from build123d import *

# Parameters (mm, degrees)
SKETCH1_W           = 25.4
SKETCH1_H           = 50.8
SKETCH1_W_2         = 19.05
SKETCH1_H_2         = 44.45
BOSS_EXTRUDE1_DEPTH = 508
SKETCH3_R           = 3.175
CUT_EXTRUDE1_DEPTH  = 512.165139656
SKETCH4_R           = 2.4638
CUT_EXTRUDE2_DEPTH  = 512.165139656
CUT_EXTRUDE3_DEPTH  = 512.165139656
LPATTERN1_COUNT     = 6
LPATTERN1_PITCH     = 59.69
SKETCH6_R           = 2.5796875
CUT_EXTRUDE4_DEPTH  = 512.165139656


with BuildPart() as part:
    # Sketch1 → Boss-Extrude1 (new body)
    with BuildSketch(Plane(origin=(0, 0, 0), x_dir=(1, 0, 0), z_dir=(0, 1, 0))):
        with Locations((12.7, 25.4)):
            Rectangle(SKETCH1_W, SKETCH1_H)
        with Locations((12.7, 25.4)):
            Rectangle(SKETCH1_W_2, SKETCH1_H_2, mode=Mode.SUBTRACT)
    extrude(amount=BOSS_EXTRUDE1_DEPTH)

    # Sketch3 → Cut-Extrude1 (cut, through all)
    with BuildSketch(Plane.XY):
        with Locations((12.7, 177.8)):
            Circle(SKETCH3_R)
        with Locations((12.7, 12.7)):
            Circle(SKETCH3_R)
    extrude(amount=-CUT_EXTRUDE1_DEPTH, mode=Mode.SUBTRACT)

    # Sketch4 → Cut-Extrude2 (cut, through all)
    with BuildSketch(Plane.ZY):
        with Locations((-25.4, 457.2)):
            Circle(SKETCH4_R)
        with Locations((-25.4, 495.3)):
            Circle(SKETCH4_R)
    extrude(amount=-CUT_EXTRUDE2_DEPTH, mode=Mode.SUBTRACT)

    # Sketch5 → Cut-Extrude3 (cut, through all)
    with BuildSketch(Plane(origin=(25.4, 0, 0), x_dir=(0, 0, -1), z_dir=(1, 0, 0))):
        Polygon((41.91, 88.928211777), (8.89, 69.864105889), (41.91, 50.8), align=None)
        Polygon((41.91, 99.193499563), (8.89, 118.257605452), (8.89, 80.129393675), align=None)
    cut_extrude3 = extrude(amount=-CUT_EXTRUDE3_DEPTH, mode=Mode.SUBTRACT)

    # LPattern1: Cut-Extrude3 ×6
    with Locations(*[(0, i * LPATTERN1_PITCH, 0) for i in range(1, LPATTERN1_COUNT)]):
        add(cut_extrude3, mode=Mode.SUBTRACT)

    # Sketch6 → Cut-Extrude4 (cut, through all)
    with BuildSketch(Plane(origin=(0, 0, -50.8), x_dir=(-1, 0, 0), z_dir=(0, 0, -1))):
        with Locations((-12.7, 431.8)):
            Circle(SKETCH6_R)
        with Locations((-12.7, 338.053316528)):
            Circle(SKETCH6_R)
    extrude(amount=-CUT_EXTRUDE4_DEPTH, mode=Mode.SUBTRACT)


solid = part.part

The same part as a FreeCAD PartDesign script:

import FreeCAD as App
import Part
import Sketcher

V = App.Vector
Q = App.Units.Quantity

doc = App.newDocument("Part")
body = doc.addObject("PartDesign::Body", "Body")

# Sketch on XZ plane
sketch1 = body.newObject("Sketcher::SketchObject", "Sketch")
sketch1.AttachmentSupport = (doc.getObject("XZ_Plane"), [""])
sketch1.MapMode = "FlatFace"
sketch1.addGeometry([
    Part.LineSegment(V(0, -50.8, 0), V(0, 0, 0)),  # 0
    Part.LineSegment(V(0, 0, 0), V(25.4, 0, 0)),  # 1
    Part.LineSegment(V(25.4, 0, 0), V(25.4, -50.8, 0)),  # 2
    Part.LineSegment(V(25.4, -50.8, 0), V(0, -50.8, 0)),  # 3
    Part.LineSegment(V(22.225, -3.175, 0), V(3.175, -3.175, 0)),  # 4
    Part.LineSegment(V(3.175, -3.175, 0), V(3.175, -47.625, 0)),  # 5
    Part.LineSegment(V(3.175, -47.625, 0), V(22.225, -47.625, 0)),  # 6
    Part.LineSegment(V(22.225, -47.625, 0), V(22.225, -3.175, 0)),  # 7
], False)
sketch1.addConstraint([
    Sketcher.Constraint("Coincident", 0, 2, 1, 1),
    Sketcher.Constraint("Coincident", 1, 2, 2, 1),
    Sketcher.Constraint("Coincident", 2, 2, 3, 1),
    Sketcher.Constraint("Coincident", 3, 2, 0, 1),
    Sketcher.Constraint("Coincident", 4, 2, 5, 1),
    Sketcher.Constraint("Coincident", 5, 2, 6, 1),
    Sketcher.Constraint("Coincident", 6, 2, 7, 1),
    Sketcher.Constraint("Coincident", 7, 2, 4, 1),
    Sketcher.Constraint("Vertical", 0),
    Sketcher.Constraint("Horizontal", 1),
    Sketcher.Constraint("Vertical", 2),
    Sketcher.Constraint("Horizontal", 3),
    Sketcher.Constraint("Horizontal", 4),
    Sketcher.Constraint("Vertical", 5),
    Sketcher.Constraint("Horizontal", 6),
    Sketcher.Constraint("Vertical", 7),
    Sketcher.Constraint("Coincident", 0, 2, -1, 1),
    Sketcher.Constraint("DistanceX", 1, 1, 1, 2, Q("1 in")),
    Sketcher.Constraint("DistanceY", 0, 1, 0, 2, Q("2 in")),
    Sketcher.Constraint("DistanceX", 4, 2, 4, 1, Q("0.75 in")),
    Sketcher.Constraint("DistanceY", 5, 2, 5, 1, Q("1.75 in")),
    Sketcher.Constraint("DistanceX", -1, 1, 4, 2, Q("0.125 in")),
    Sketcher.Constraint("DistanceY", 4, 2, -1, 1, Q("0.125 in")),
])
pad1 = body.newObject("PartDesign::Pad", "Pad")
pad1.Profile = sketch1
pad1.Length = Q("20 in")
pad1.Reversed = True

# Sketch on XY plane
sketch2 = body.newObject("Sketcher::SketchObject", "Sketch001")
sketch2.AttachmentSupport = (doc.getObject("XY_Plane"), [""])
sketch2.MapMode = "FlatFace"
sketch2.addGeometry([
    Part.Circle(V(12.7, 177.8, 0), V(0, 0, 1), 3.175),
    Part.Circle(V(12.7, 12.7, 0), V(0, 0, 1), 3.175),
], False)
sketch2.addConstraint([
    Sketcher.Constraint("Equal", 0, 1),
    Sketcher.Constraint("Vertical", 0, 3, 1, 3),
    Sketcher.Constraint("Diameter", 0, Q("0.25 in")),
    Sketcher.Constraint("DistanceY", -1, 1, 0, 3, Q("7 in")),
    Sketcher.Constraint("DistanceX", -1, 1, 0, 3, Q("0.5 in")),
    Sketcher.Constraint("DistanceY", -1, 1, 1, 3, Q("0.5 in")),
])
pocket1 = body.newObject("PartDesign::Pocket", "Pocket")
pocket1.Profile = sketch2
pocket1.Type = "ThroughAll"

# Sketch on YZ plane
sketch3 = body.newObject("Sketcher::SketchObject", "Sketch002")
sketch3.AttachmentSupport = (doc.getObject("YZ_Plane"), [""])
sketch3.MapMode = "FlatFace"
sketch3.addGeometry([
    Part.Circle(V(457.2, -25.4, 0), V(0, 0, 1), 2.4638),
    Part.Circle(V(495.3, -25.4, 0), V(0, 0, 1), 2.4638),
], False)
sketch3.addConstraint([
    Sketcher.Constraint("Equal", 0, 1),
    Sketcher.Constraint("Horizontal", 0, 3, 1, 3),
    Sketcher.Constraint("Diameter", 0, Q("0.194 in")),
    Sketcher.Constraint("DistanceX", -1, 1, 0, 3, Q("18 in")),
    Sketcher.Constraint("DistanceY", 0, 3, -1, 1, Q("1 in")),
    Sketcher.Constraint("DistanceX", -1, 1, 1, 3, Q("19.5 in")),
])
pocket2 = body.newObject("PartDesign::Pocket", "Pocket001")
pocket2.Profile = sketch3
pocket2.Type = "ThroughAll"
pocket2.Reversed = True

# Sketch on YZ plane
sketch4 = body.newObject("Sketcher::SketchObject", "Sketch003")
sketch4.AttachmentSupport = (doc.getObject("YZ_Plane"), [""])
sketch4.MapMode = "FlatFace"
sketch4.AttachmentOffset = App.Placement(V(0, 0, 1 * 25.4), App.Rotation())
sketch4.addGeometry([
    Part.LineSegment(V(88.928212, -41.91, 0), V(69.864106, -8.89, 0)),  # 0
    Part.LineSegment(V(69.864106, -8.89, 0), V(50.8, -41.91, 0)),  # 1
    Part.LineSegment(V(50.8, -41.91, 0), V(88.928212, -41.91, 0)),  # 2
    Part.LineSegment(V(99.1935, -41.91, 0), V(118.257605, -8.89, 0)),  # 3
    Part.LineSegment(V(118.257605, -8.89, 0), V(80.129394, -8.89, 0)),  # 4
    Part.LineSegment(V(80.129394, -8.89, 0), V(99.1935, -41.91, 0)),  # 5
], False)
sketch4.addConstraint([
    Sketcher.Constraint("Coincident", 0, 2, 1, 1),
    Sketcher.Constraint("Coincident", 1, 2, 2, 1),
    Sketcher.Constraint("Coincident", 2, 2, 0, 1),
    Sketcher.Constraint("Coincident", 3, 2, 4, 1),
    Sketcher.Constraint("Coincident", 4, 2, 5, 1),
    Sketcher.Constraint("Coincident", 5, 2, 3, 1),
    Sketcher.Constraint("Horizontal", 2),
    Sketcher.Constraint("Horizontal", 4),
    Sketcher.Constraint("Parallel", 1, 3),
    Sketcher.Constraint("Parallel", 0, 5),
    Sketcher.Constraint("Horizontal", 0, 2, 3, 2),
    Sketcher.Constraint("Horizontal", 2, 2, 5, 2),
    Sketcher.Constraint("Equal", 0, 1),
    Sketcher.Constraint("DistanceX", -1, 1, 1, 2, Q("2 in")),
    Sketcher.Constraint("Angle", 0, Q("120 deg")),
    Sketcher.Constraint("DistanceY", 1, 2, 0, 2, Q("1.3 in")),
    Sketcher.Constraint("DistanceY", 0, 2, -1, 1, Q("0.35 in")),
    Sketcher.Constraint("DistanceX", -1, 1, 5, 2, Q("99.1935 mm")),
])
pocket3 = body.newObject("PartDesign::Pocket", "Pocket002")
pocket3.Profile = sketch4
pocket3.Type = "ThroughAll"
doc.recompute()

linearpattern = body.newObject("PartDesign::LinearPattern", "LinearPattern")
linearpattern.Originals = [pocket3]
linearpattern.Direction = (doc.getObject("Y_Axis"), [""])
linearpattern.Mode = "offset"
linearpattern.Offset = Q("2.35 in")
linearpattern.Occurrences = 6
body.Tip = linearpattern

# Sketch on XY plane
sketch5 = body.newObject("Sketcher::SketchObject", "Sketch004")
sketch5.AttachmentSupport = (doc.getObject("XY_Plane"), [""])
sketch5.MapMode = "FlatFace"
sketch5.AttachmentOffset = App.Placement(V(0, 0, -2 * 25.4), App.Rotation())
sketch5.addGeometry([
    Part.Circle(V(12.7, 431.8, 0), V(0, 0, 1), 2.579687),
    Part.Circle(V(12.7, 338.053317, 0), V(0, 0, 1), 2.579687),
], False)
sketch5.addConstraint([
    Sketcher.Constraint("Equal", 0, 1),
    Sketcher.Constraint("Vertical", 0, 3, 1, 3),
    Sketcher.Constraint("Diameter", 0, Q("0.203125 in")),
    Sketcher.Constraint("DistanceY", -1, 1, 0, 3, Q("17 in")),
    Sketcher.Constraint("DistanceX", -1, 1, 0, 3, Q("0.5 in")),
    Sketcher.Constraint("DistanceY", -1, 1, 1, 3, Q("338.053317 mm")),
])
pocket4 = body.newObject("PartDesign::Pocket", "Pocket003")
pocket4.Profile = sketch5
pocket4.Type = "ThroughAll"
pocket4.Reversed = True

doc.recompute()
